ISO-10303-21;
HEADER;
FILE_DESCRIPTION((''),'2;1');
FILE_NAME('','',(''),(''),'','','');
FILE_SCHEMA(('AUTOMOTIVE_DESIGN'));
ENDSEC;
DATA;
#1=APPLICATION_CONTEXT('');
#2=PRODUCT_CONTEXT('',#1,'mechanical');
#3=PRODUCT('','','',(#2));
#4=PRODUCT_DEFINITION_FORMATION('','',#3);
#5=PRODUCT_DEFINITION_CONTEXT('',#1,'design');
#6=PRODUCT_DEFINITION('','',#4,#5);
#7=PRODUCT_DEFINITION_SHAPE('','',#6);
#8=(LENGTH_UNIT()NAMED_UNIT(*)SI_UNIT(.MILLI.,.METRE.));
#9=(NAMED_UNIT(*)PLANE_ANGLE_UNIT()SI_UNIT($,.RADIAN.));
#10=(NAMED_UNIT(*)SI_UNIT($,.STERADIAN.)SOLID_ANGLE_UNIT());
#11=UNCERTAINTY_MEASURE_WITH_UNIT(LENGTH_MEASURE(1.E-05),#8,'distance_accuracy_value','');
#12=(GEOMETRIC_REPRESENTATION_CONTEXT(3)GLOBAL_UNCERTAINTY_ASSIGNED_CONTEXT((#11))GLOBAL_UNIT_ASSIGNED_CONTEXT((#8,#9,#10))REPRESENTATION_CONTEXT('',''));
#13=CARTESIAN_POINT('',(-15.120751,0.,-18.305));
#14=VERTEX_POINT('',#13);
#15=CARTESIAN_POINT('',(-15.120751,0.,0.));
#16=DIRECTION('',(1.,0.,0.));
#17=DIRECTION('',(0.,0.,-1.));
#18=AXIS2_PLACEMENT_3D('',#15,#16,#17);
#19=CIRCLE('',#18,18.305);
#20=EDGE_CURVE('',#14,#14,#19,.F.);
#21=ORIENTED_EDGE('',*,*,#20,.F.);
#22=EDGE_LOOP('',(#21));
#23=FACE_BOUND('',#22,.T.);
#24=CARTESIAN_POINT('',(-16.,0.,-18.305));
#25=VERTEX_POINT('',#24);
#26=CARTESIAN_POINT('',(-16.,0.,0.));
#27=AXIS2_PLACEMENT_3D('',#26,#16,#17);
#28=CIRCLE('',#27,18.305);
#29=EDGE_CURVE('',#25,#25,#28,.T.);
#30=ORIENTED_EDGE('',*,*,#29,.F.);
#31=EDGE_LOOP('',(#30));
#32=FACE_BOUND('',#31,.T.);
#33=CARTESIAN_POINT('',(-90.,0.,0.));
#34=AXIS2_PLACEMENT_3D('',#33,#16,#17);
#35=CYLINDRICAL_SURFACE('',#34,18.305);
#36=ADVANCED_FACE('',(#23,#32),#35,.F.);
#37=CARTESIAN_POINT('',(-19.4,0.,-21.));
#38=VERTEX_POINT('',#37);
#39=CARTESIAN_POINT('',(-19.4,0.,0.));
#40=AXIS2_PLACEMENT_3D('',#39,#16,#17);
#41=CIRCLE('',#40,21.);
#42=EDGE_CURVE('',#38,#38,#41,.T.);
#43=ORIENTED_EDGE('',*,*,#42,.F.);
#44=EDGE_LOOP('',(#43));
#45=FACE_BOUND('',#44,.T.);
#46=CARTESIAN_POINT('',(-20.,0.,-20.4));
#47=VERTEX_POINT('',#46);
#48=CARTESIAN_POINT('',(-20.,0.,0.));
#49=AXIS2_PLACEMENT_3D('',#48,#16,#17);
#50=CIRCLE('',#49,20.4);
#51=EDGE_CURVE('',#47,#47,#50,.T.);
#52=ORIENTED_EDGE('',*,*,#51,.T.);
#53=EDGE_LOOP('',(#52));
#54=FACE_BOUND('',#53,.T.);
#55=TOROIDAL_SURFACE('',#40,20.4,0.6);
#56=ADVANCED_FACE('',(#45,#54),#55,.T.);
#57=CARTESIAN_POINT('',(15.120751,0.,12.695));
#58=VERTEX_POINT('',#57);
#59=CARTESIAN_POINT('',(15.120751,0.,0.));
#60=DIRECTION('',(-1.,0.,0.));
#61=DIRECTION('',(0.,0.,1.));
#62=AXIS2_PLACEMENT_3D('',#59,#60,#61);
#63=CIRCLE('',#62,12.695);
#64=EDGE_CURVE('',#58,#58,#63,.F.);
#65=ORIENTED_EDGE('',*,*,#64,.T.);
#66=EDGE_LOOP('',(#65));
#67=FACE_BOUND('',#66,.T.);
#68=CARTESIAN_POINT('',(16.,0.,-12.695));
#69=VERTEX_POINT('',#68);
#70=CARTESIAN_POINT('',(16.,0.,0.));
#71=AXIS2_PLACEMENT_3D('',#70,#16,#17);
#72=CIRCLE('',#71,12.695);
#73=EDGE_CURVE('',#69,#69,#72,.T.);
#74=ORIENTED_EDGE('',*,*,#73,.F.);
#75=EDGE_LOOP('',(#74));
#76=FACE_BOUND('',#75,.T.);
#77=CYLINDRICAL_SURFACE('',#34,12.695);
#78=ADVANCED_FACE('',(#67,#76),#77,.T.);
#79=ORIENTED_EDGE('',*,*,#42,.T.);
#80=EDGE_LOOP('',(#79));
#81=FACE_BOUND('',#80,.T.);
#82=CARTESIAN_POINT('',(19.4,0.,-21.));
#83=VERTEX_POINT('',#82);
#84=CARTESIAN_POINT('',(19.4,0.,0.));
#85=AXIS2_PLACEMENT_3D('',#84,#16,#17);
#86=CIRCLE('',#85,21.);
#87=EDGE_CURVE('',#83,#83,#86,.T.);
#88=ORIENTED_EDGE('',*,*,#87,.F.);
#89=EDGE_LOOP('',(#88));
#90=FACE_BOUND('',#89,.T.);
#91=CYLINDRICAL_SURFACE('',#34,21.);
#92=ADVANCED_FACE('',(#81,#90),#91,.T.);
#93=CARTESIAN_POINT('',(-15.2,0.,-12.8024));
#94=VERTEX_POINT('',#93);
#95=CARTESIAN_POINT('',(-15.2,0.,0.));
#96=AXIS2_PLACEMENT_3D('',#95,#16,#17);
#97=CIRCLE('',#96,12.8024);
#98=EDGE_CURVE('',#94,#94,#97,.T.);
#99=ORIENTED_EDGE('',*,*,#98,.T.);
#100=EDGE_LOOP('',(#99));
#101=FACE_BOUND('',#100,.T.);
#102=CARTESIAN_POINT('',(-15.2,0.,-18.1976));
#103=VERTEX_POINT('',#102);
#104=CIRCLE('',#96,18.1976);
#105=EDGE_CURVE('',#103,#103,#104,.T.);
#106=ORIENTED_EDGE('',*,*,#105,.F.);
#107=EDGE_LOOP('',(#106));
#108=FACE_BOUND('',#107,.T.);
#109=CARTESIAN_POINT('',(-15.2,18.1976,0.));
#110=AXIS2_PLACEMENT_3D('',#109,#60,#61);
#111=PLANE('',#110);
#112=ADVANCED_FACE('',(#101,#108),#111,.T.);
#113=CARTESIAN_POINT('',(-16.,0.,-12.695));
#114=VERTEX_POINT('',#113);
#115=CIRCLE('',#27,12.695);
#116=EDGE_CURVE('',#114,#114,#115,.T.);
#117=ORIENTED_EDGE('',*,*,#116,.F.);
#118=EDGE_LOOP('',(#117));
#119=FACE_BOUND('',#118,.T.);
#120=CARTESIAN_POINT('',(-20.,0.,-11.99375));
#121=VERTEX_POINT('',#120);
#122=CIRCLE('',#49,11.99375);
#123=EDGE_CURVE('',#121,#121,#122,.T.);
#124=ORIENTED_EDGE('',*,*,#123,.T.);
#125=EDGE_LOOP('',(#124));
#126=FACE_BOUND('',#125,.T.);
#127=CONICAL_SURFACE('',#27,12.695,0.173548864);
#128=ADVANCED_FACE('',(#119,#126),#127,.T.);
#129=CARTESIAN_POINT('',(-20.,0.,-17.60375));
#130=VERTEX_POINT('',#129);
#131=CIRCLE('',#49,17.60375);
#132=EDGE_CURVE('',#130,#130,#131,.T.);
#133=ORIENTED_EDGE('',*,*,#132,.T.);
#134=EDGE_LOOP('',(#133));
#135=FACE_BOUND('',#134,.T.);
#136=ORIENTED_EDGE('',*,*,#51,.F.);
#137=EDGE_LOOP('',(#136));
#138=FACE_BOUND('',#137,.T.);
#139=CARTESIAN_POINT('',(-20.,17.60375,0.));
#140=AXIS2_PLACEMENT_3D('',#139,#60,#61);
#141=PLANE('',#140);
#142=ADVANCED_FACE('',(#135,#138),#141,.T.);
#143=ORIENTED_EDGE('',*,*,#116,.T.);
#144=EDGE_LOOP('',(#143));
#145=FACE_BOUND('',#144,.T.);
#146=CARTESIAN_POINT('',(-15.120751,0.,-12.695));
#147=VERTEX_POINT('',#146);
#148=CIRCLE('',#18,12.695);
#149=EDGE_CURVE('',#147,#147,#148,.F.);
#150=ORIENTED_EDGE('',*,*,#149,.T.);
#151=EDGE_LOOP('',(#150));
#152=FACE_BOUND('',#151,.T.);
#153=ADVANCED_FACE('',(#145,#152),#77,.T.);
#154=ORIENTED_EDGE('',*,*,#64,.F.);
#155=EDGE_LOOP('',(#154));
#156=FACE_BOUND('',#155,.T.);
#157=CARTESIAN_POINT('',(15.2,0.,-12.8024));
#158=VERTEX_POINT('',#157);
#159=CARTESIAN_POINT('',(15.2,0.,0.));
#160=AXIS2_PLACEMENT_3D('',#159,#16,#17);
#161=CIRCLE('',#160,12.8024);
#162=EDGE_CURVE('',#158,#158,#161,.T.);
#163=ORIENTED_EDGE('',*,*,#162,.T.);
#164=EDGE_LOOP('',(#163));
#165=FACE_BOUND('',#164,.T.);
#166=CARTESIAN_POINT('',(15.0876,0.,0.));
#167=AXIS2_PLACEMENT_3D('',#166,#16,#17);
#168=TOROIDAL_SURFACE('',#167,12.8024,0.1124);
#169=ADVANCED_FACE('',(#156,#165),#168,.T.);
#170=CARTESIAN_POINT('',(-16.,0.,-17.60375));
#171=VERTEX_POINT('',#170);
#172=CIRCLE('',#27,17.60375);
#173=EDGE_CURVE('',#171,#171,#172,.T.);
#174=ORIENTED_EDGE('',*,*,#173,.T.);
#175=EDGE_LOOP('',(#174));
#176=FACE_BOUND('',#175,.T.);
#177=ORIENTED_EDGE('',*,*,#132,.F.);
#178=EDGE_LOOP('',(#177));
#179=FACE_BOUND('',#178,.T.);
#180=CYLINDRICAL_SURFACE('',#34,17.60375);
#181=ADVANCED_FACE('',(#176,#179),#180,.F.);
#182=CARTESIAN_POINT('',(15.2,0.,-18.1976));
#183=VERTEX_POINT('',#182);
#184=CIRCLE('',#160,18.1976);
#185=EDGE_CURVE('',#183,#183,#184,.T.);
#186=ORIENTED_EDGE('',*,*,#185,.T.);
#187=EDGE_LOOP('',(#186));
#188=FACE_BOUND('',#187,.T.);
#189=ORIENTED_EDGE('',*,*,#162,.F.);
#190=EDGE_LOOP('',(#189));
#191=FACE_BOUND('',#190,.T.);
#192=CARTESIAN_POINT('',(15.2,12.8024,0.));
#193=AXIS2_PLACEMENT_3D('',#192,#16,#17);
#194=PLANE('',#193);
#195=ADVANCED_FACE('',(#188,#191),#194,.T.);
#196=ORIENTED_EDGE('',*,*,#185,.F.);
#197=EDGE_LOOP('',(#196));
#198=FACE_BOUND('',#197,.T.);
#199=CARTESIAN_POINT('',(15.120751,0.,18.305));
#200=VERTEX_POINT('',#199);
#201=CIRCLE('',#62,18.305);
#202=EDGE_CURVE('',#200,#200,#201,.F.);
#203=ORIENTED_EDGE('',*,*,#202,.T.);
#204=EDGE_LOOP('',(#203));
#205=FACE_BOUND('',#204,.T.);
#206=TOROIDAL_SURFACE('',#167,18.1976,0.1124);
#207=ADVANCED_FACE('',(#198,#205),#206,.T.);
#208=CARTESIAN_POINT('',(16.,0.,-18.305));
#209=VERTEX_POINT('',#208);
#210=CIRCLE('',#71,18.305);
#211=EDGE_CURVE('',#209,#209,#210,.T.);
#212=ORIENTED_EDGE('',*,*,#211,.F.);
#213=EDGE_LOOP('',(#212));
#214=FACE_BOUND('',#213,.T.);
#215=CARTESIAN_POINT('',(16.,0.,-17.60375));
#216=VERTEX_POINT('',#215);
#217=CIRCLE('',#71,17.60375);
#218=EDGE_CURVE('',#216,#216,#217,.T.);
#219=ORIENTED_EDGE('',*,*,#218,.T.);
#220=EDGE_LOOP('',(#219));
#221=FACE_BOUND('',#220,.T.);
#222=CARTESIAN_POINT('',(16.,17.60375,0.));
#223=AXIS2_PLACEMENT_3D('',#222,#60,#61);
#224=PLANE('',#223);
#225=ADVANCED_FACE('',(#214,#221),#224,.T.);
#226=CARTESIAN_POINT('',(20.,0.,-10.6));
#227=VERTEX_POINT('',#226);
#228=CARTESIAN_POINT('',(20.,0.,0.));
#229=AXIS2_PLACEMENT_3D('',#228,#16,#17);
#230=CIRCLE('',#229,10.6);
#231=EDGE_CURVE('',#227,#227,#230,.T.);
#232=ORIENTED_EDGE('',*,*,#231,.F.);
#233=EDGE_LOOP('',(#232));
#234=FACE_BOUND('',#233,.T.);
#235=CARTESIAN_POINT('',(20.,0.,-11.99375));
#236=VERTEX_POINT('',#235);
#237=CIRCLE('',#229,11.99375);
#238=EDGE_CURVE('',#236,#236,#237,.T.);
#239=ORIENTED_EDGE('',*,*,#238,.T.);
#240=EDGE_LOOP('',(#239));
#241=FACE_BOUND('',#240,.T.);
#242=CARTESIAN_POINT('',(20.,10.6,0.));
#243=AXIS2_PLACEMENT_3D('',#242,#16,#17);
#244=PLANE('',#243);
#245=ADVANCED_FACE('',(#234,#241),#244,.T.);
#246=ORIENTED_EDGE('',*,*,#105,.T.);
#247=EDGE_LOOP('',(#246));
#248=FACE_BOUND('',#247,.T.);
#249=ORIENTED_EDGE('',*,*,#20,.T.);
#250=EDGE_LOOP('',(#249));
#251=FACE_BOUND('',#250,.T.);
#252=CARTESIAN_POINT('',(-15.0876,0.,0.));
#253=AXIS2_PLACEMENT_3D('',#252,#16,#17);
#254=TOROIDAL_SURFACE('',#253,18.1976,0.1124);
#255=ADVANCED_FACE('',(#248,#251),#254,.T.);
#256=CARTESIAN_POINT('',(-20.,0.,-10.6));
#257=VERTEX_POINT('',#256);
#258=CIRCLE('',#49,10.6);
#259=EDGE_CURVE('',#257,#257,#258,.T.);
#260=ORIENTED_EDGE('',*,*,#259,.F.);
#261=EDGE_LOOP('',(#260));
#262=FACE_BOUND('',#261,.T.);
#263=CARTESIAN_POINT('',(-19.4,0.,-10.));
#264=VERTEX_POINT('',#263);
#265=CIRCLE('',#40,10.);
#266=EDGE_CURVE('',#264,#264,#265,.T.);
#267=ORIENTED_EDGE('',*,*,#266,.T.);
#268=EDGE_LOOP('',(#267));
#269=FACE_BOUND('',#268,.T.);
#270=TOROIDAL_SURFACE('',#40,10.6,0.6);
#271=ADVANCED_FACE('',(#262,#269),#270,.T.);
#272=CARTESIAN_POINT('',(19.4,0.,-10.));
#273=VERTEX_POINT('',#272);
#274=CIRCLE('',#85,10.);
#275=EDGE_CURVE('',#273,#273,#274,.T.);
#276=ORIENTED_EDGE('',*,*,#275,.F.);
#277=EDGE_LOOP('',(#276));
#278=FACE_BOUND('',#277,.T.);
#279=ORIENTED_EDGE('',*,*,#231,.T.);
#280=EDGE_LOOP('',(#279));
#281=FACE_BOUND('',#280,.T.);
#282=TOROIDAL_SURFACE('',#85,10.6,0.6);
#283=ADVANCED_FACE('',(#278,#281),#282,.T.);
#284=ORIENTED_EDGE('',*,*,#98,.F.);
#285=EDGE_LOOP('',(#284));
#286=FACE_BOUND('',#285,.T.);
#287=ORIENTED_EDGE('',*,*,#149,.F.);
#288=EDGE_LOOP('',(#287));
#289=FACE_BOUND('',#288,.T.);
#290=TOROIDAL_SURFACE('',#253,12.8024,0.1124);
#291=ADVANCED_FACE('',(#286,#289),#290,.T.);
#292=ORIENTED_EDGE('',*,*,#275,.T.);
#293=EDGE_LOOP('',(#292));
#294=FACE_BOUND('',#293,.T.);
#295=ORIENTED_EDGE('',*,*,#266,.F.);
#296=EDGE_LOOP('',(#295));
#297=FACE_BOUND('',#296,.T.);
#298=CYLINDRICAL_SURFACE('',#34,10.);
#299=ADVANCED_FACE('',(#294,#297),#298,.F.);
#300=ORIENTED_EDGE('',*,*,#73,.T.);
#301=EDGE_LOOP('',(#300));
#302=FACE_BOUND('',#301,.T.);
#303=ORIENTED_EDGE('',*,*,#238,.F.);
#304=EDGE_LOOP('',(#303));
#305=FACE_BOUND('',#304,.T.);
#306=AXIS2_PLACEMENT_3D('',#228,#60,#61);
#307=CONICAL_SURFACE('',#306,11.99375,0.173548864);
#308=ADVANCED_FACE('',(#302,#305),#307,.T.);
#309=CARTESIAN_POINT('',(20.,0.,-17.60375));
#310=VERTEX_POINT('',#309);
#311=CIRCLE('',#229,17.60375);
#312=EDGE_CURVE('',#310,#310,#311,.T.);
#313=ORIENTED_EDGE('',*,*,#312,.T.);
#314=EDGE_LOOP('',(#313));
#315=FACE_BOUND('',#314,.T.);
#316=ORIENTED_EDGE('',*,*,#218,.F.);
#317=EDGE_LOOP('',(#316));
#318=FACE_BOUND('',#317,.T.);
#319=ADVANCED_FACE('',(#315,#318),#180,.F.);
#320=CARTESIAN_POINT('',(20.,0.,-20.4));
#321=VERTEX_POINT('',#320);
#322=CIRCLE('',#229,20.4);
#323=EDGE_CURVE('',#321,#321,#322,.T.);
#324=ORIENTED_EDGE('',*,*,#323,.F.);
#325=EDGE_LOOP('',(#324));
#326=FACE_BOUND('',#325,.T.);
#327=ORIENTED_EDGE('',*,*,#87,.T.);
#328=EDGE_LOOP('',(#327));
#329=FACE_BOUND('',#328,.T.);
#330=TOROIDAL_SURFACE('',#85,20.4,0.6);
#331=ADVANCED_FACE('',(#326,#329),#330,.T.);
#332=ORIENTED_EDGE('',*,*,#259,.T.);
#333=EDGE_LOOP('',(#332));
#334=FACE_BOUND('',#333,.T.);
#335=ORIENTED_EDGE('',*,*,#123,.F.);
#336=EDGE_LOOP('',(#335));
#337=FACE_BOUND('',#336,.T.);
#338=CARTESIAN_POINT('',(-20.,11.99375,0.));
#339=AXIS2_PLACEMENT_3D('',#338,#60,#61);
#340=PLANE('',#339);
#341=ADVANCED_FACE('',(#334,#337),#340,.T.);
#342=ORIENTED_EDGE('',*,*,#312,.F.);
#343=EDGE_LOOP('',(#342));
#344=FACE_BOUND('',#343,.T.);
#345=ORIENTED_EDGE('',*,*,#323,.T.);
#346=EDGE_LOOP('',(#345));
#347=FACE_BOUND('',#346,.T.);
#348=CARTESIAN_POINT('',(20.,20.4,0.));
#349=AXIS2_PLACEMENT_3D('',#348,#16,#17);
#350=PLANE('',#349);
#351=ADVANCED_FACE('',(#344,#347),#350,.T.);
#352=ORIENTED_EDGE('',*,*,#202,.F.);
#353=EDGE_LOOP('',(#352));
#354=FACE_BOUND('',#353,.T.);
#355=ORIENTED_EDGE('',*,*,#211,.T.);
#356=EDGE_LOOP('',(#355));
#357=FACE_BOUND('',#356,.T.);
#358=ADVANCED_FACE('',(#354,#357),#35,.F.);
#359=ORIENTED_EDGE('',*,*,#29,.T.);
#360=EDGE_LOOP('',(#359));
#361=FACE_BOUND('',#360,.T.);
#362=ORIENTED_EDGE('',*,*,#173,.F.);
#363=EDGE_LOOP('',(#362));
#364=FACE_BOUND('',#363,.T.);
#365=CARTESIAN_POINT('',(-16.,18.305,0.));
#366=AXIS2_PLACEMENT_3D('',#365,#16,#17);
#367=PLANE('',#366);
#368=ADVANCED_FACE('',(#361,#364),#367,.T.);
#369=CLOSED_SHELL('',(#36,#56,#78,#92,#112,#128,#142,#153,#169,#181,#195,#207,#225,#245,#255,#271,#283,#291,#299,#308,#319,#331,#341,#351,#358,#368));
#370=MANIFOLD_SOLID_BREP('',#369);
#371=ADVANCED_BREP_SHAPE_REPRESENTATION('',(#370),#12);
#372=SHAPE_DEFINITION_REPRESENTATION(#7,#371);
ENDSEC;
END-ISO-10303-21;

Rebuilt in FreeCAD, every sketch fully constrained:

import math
import FreeCAD as App
import Part
import Sketcher
Q = App.Units.Quantity

doc = App.newDocument("Part")
body = doc.addObject("PartDesign::Body", "Body")

# Sketch on XY plane
sketch1 = doc.addObject("Sketcher::SketchObject", "Sketch")
body.addObject(sketch1)
sketch1.AttachmentSupport = (doc.XY_Plane, [""])
sketch1.MapMode = "FlatFace"
sketch1.addGeometry([
    Part.LineSegment(App.Vector(-20, 17.6, 0), App.Vector(-16, 17.6, 0)),  # 0
    Part.LineSegment(App.Vector(-16, 17.6, 0), App.Vector(-16, 18.3, 0)),  # 1
    Part.LineSegment(App.Vector(-16, 18.3, 0), App.Vector(16, 18.3, 0)),  # 2
    Part.LineSegment(App.Vector(16, 18.3, 0), App.Vector(16, 17.6, 0)),  # 3
    Part.LineSegment(App.Vector(16, 17.6, 0), App.Vector(20, 17.6, 0)),  # 4
    Part.LineSegment(App.Vector(20, 17.6, 0), App.Vector(20, 20.4, 0)),  # 5
    Part.ArcOfCircle(Part.Circle(App.Vector(19.4, 20.4, 0), App.Vector(0, 0, 1), 0.6), math.radians(0), math.radians(90)),  # 6
    Part.LineSegment(App.Vector(19.4, 21, 0), App.Vector(-19.4, 21, 0)),  # 7
    Part.ArcOfCircle(Part.Circle(App.Vector(-19.4, 20.4, 0), App.Vector(0, 0, 1), 0.6), math.radians(90), math.radians(180)),  # 8
    Part.LineSegment(App.Vector(-20, 20.4, 0), App.Vector(-20, 17.6, 0)),  # 9
], False)
sketch1.addConstraint([
    Sketcher.Constraint("Coincident", 0, 2, 1, 1),
    Sketcher.Constraint("Coincident", 1, 2, 2, 1),
    Sketcher.Constraint("Coincident", 2, 2, 3, 1),
    Sketcher.Constraint("Coincident", 3, 2, 4, 1),
    Sketcher.Constraint("Coincident", 4, 2, 5, 1),
    Sketcher.Constraint("Tangent", 5, 2, 6, 1),
    Sketcher.Constraint("Tangent", 6, 2, 7, 1),
    Sketcher.Constraint("Tangent", 7, 2, 8, 1),
    Sketcher.Constraint("Tangent", 8, 2, 9, 1),
    Sketcher.Constraint("Coincident", 9, 2, 0, 1),
    Sketcher.Constraint("Horizontal", 0),
    Sketcher.Constraint("Vertical", 1),
    Sketcher.Constraint("Horizontal", 2),
    Sketcher.Constraint("Vertical", 3),
    Sketcher.Constraint("Horizontal", 4),
    Sketcher.Constraint("Vertical", 5),
    Sketcher.Constraint("Horizontal", 7),
    Sketcher.Constraint("Vertical", 9),
    Sketcher.Constraint("Equal", 6, 8),
    Sketcher.Constraint("Symmetric", 0, 2, 3, 2, -2),
    Sketcher.Constraint("Equal", 0, 4),
    Sketcher.Constraint("Radius", 6, Q("0.6 mm")),
    Sketcher.Constraint("DistanceX", 0, 1, 0, 2, Q("4 mm")),
    Sketcher.Constraint("DistanceX", 2, 1, 2, 2, Q("32 mm")),
    Sketcher.Constraint("DistanceY", -1, 1, 6, 2, Q("21 mm")),
    Sketcher.Constraint("DistanceY", -1, 1, 1, 2, Q("18.305 mm")),
    Sketcher.Constraint("DistanceY", 1, 1, 1, 2, Q("0.70125 mm")),
])
revolution = doc.addObject("PartDesign::Revolution", "Revolution")
body.addObject(revolution)
revolution.Profile = sketch1
revolution.ReferenceAxis = (sketch1, ["H_Axis"])
revolution.Angle = 360

# Sketch on XY plane
sketch2 = doc.addObject("Sketcher::SketchObject", "Sketch001")
body.addObject(sketch2)
sketch2.AttachmentSupport = (doc.XY_Plane, [""])
sketch2.MapMode = "FlatFace"
sketch2.addGeometry([
    Part.LineSegment(App.Vector(-15.2, 18.2, 0), App.Vector(-15.2, 12.8, 0)),  # 0
    Part.ArcOfCircle(Part.Circle(App.Vector(-15.09, 12.8, 0), App.Vector(0, 0, 1), 0.11), math.radians(-180), math.radians(-90)),  # 1
    Part.LineSegment(App.Vector(-15.09, 12.69, 0), App.Vector(15.09, 12.69, 0)),  # 2
    Part.ArcOfCircle(Part.Circle(App.Vector(15.09, 12.8, 0), App.Vector(0, 0, 1), 0.11), math.radians(-90), math.radians(0)),  # 3
    Part.LineSegment(App.Vector(15.2, 12.8, 0), App.Vector(15.2, 18.2, 0)),  # 4
    Part.ArcOfCircle(Part.Circle(App.Vector(15.09, 18.2, 0), App.Vector(0, 0, 1), 0.11), math.radians(0), math.radians(90)),  # 5
    Part.LineSegment(App.Vector(15.09, 18.31, 0), App.Vector(-15.09, 18.31, 0)),  # 6
    Part.ArcOfCircle(Part.Circle(App.Vector(-15.09, 18.2, 0), App.Vector(0, 0, 1), 0.11), math.radians(90), math.radians(180)),  # 7
], False)
sketch2.addConstraint([
    Sketcher.Constraint("Tangent", 0, 2, 1, 1),
    Sketcher.Constraint("Tangent", 1, 2, 2, 1),
    Sketcher.Constraint("Tangent", 2, 2, 3, 1),
    Sketcher.Constraint("Tangent", 3, 2, 4, 1),
    Sketcher.Constraint("Tangent", 4, 2, 5, 1),
    Sketcher.Constraint("Tangent", 5, 2, 6, 1),
    Sketcher.Constraint("Tangent", 6, 2, 7, 1),
    Sketcher.Constraint("Tangent", 7, 2, 0, 1),
    Sketcher.Constraint("Vertical", 0),
    Sketcher.Constraint("Horizontal", 2),
    Sketcher.Constraint("Vertical", 4),
    Sketcher.Constraint("Horizontal", 6),
    Sketcher.Constraint("Equal", 1, 3),
    Sketcher.Constraint("Equal", 3, 5),
    Sketcher.Constraint("Equal", 5, 7),
    Sketcher.Constraint("DistanceX", 0, 2, -1, 1, Q("15.2 mm")),
    Sketcher.Constraint("DistanceX", -1, 1, 3, 2, Q("15.2 mm")),
    Sketcher.Constraint("Radius", 1, Q("0.1124 mm")),
    Sketcher.Constraint("DistanceY", -1, 1, 1, 2, Q("12.69 mm")),
    Sketcher.Constraint("DistanceY", -1, 1, 5, 2, Q("18.31 mm")),
])
revolution2 = doc.addObject("PartDesign::Revolution", "Revolution001")
body.addObject(revolution2)
revolution2.Profile = sketch2
revolution2.ReferenceAxis = (sketch2, ["H_Axis"])
revolution2.Angle = 360

# Sketch on XY plane
sketch3 = doc.addObject("Sketcher::SketchObject", "Sketch002")
body.addObject(sketch3)
sketch3.AttachmentSupport = (doc.XY_Plane, [""])
sketch3.MapMode = "FlatFace"
sketch3.addGeometry([
    Part.LineSegment(App.Vector(-16, 12.7, 0), App.Vector(-20, 12, 0)),  # 0
    Part.LineSegment(App.Vector(-20, 12, 0), App.Vector(-20, 10.6, 0)),  # 1
    Part.ArcOfCircle(Part.Circle(App.Vector(-19.4, 10.6, 0), App.Vector(0, 0, 1), 0.6), math.radians(180), math.radians(270)),  # 2
    Part.LineSegment(App.Vector(-19.4, 10, 0), App.Vector(19.4, 10, 0)),  # 3
    Part.ArcOfCircle(Part.Circle(App.Vector(19.4, 10.6, 0), App.Vector(0, 0, 1), 0.6), math.radians(-90), math.radians(0)),  # 4
    Part.LineSegment(App.Vector(20, 10.6, 0), App.Vector(20, 12, 0)),  # 5
    Part.LineSegment(App.Vector(20, 12, 0), App.Vector(16, 12.7, 0)),  # 6
    Part.LineSegment(App.Vector(16, 12.7, 0), App.Vector(-16, 12.7, 0)),  # 7
], False)
sketch3.addConstraint([
    Sketcher.Constraint("Coincident", 0, 2, 1, 1),
    Sketcher.Constraint("Tangent", 1, 2, 2, 1),
    Sketcher.Constraint("Tangent", 2, 2, 3, 1),
    Sketcher.Constraint("Tangent", 3, 2, 4, 1),
    Sketcher.Constraint("Tangent", 4, 2, 5, 1),
    Sketcher.Constraint("Coincident", 5, 2, 6, 1),
    Sketcher.Constraint("Coincident", 6, 2, 7, 1),
    Sketcher.Constraint("Coincident", 7, 2, 0, 1),
    Sketcher.Constraint("Vertical", 1),
    Sketcher.Constraint("Horizontal", 3),
    Sketcher.Constraint("Vertical", 5),
    Sketcher.Constraint("Horizontal", 7),
    Sketcher.Constraint("Equal", 2, 4),
    Sketcher.Constraint("Symmetric", 0, 2, 5, 2, -2),
    Sketcher.Constraint("Equal", 0, 6),
    Sketcher.Constraint("Radius", 2, Q("0.6 mm")),
    Sketcher.Constraint("DistanceX", 7, 2, 7, 1, Q("32 mm")),
    Sketcher.Constraint("DistanceX", 3, 1, 3, 2, Q("38.8 mm")),
    Sketcher.Constraint("DistanceY", -1, 1, 2, 2, Q("10 mm")),
    Sketcher.Constraint("DistanceY", -1, 1, 6, 2, Q("12.695 mm")),
    Sketcher.Constraint("DistanceY", 1, 2, 1, 1, Q("1.39375 mm")),
])
revolution3 = doc.addObject("PartDesign::Revolution", "Revolution002")
body.addObject(revolution3)
revolution3.Profile = sketch3
revolution3.ReferenceAxis = (sketch3, ["H_Axis"])
revolution3.Angle = 360

doc.recompute()
